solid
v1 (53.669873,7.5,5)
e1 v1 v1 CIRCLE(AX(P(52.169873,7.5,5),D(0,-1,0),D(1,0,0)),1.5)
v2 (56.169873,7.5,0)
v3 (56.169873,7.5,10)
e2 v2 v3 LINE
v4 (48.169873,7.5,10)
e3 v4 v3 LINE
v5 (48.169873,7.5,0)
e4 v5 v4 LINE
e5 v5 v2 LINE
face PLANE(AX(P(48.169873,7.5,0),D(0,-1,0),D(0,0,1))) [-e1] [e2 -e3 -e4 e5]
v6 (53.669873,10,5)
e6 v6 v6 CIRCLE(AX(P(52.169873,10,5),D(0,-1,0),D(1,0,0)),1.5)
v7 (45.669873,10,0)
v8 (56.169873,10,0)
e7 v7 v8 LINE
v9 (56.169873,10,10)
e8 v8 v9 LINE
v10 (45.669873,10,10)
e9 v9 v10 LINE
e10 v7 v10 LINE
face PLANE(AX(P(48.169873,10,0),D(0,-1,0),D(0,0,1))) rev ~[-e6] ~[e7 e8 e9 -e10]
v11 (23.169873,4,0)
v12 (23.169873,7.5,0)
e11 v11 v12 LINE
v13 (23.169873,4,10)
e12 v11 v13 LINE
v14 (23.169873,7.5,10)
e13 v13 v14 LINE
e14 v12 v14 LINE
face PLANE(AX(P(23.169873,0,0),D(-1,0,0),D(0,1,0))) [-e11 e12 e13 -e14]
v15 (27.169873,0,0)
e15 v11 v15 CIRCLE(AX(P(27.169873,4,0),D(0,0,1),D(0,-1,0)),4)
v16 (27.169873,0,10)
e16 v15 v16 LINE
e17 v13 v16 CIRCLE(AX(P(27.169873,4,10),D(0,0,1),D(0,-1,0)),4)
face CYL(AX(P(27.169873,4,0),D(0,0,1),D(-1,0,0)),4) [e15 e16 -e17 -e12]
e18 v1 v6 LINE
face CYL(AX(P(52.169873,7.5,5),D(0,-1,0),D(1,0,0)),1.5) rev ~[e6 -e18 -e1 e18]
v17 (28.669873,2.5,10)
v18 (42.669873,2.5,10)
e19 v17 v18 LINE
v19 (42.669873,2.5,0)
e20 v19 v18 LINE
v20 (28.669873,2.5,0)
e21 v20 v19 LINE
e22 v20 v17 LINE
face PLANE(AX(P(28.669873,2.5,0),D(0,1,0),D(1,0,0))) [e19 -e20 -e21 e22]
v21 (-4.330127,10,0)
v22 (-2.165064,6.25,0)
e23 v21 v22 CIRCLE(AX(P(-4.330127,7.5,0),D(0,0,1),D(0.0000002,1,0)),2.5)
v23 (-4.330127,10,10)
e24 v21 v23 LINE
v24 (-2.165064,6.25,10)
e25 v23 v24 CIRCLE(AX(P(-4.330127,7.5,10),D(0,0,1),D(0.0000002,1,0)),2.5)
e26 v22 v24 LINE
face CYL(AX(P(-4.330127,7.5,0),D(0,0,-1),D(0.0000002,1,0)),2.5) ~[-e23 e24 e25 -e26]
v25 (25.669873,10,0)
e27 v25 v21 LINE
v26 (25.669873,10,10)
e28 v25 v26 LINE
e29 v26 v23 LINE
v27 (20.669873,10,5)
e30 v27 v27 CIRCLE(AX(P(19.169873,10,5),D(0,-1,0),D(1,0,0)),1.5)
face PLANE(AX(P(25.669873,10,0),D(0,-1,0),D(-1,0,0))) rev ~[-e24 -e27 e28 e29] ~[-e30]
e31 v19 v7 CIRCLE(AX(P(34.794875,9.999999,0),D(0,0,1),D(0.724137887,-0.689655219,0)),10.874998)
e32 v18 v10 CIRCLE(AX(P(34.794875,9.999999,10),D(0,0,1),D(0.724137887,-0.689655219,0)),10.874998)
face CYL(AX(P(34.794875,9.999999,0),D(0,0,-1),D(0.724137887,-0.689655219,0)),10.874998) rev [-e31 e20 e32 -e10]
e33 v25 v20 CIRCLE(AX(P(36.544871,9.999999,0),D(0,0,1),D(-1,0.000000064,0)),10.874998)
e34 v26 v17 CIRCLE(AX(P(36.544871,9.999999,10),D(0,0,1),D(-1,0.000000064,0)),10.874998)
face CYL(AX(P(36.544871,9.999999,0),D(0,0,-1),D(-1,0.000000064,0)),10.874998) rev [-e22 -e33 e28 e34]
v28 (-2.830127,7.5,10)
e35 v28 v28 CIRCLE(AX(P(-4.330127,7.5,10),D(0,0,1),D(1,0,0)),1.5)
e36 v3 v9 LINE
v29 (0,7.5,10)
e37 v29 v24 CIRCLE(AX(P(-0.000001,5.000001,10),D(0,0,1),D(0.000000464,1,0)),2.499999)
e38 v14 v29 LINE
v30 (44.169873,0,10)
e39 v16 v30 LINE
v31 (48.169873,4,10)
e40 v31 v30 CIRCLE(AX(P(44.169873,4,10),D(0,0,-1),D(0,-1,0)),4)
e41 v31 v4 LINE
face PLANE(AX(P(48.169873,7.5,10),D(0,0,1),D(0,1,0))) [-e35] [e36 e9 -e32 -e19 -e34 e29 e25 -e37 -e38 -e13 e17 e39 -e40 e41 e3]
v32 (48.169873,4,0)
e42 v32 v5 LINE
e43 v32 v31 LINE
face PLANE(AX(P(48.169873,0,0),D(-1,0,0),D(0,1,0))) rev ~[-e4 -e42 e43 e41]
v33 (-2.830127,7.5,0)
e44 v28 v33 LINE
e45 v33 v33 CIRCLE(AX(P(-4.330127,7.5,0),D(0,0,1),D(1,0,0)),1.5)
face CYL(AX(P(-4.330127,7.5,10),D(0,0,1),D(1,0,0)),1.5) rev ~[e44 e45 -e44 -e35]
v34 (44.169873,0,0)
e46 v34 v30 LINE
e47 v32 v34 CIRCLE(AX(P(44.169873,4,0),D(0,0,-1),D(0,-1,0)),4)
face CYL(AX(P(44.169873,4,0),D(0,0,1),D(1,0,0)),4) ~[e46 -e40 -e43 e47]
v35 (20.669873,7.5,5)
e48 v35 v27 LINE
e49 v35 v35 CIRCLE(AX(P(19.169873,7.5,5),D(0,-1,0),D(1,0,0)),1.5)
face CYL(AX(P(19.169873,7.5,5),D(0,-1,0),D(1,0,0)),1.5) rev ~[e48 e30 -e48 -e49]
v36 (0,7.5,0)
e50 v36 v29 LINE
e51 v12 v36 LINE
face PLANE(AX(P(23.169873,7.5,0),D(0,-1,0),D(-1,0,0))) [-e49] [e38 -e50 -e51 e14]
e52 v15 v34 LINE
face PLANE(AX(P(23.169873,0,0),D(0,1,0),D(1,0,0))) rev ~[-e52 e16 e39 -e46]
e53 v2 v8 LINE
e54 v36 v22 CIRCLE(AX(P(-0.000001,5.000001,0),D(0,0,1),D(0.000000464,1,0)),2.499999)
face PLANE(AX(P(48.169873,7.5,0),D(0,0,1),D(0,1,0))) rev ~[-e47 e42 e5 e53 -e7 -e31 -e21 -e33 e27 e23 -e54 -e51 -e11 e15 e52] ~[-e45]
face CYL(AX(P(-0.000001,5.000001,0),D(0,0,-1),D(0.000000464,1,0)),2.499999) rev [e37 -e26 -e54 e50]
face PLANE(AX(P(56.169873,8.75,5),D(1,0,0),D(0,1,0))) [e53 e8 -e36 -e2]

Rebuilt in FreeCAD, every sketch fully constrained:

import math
import FreeCAD as App
import Part
import Sketcher

V = App.Vector
Q = App.Units.Quantity


def edges_at(feature, points):
    """Names of the edges that pass closest to the given points."""
    edges = feature.Shape.Edges
    near = lambda p: min(range(len(edges)), key=lambda i: edges[i].distToShape(Part.Vertex(*p))[0])
    return sorted({f"Edge{near(p) + 1}" for p in points})


def add_polygon(sketch, points):
    """Adds a closed chain of lines whose ends are joined by coincident constraints."""
    first, n = sketch.GeometryCount, len(points)
    for a, b in zip(points, points[1:] + points[:1]):
        sketch.addGeometry(Part.LineSegment(App.Vector(*a, 0), App.Vector(*b, 0)), False)
    for i in range(n):
        sketch.addConstraint(Sketcher.Constraint("Coincident", first + i, 2, first + (i + 1) % n, 1))

doc = App.newDocument("Part")
params = doc.addObject("Spreadsheet::Sheet", "Params")
for row, (alias, value) in enumerate([
    ("sketch1_radius", "2.5 mm"),
    ("sketch1_width", "30 mm"),
    ("sketch1_width2", "25 mm"),
    ("sketch1_width3", "14 mm"),
    ("sketch1_height", "10 mm"),
    ("pad1_length", "10 mm"),
    ("sketch2_diameter", "3 mm"),
    ("sketch3_height", "10 mm"),
    ("sketch3_width", "2.5 mm"),
    ("pad2_length", "8 mm"),
    ("sketch4_diameter", "3 mm"),
    ("fillet_radius", "4 mm"),
], start=1):
    params.set(f"A{row}", alias)
    params.set(f"B{row}", "=" + value)
    params.setAlias(f"B{row}", alias)

body = doc.addObject("PartDesign::Body", "Body")

# Sketch on XY plane
sketch1 = doc.addObject("Sketcher::SketchObject", "Sketch")
body.addObject(sketch1)
sketch1.AttachmentSupport = (doc.XY_Plane, [""])
sketch1.MapMode = "FlatFace"
sketch1.addGeometry(Part.ArcOfCircle(Part.Circle(V(36.5, 10, 0), V(0, 0, 1), 10.9), math.radians(180), math.radians(224)), False)
sketch1.addGeometry(Part.LineSegment(V(25.7, 10, 0), V(-4.3, 10, 0)), False)
sketch1.addGeometry(Part.ArcOfCircle(Part.Circle(V(-4.3, 7.5, 0), V(0, 0, 1), 2.5), math.radians(90), math.radians(330)), False)
sketch1.addGeometry(Part.ArcOfCircle(Part.Circle(V(0, 5, 0), V(0, 0, 1), 2.5), math.radians(90), math.radians(150)), False)
sketch1.addGeometry(Part.LineSegment(V(0, 7.5, 0), V(23.2, 7.5, 0)), False)
sketch1.addGeometry(Part.LineSegment(V(23.2, 7.5, 0), V(23.2, 0, 0)), False)
sketch1.addGeometry(Part.LineSegment(V(23.2, 0, 0), V(48.2, 0, 0)), False)
sketch1.addGeometry(Part.LineSegment(V(48.2, 0, 0), V(48.2, 10, 0)), False)
sketch1.addGeometry(Part.LineSegment(V(48.2, 10, 0), V(45.7, 10, 0)), False)
sketch1.addGeometry(Part.ArcOfCircle(Part.Circle(V(34.8, 10, 0), V(0, 0, 1), 10.9), math.radians(-44), math.radians(0)), False)
sketch1.addGeometry(Part.LineSegment(V(42.7, 2.5, 0), V(28.7, 2.5, 0)), False)
sketch1.addConstraint(Sketcher.Constraint("Coincident", 0, 1, 1, 1))
sketch1.addConstraint(Sketcher.Constraint("Tangent", 1, 2, 2, 1))
sketch1.addConstraint(Sketcher.Constraint("Tangent", 2, 2, 3, 2))
sketch1.addConstraint(Sketcher.Constraint("Tangent", 3, 1, 4, 1))
sketch1.addConstraint(Sketcher.Constraint("Coincident", 4, 2, 5, 1))
sketch1.addConstraint(Sketcher.Constraint("Coincident", 5, 2, 6, 1))
sketch1.addConstraint(Sketcher.Constraint("Coincident", 6, 2, 7, 1))
sketch1.addConstraint(Sketcher.Constraint("Coincident", 7, 2, 8, 1))
sketch1.addConstraint(Sketcher.Constraint("Coincident", 8, 2, 9, 2))
sketch1.addConstraint(Sketcher.Constraint("Coincident", 9, 1, 10, 1))
sketch1.addConstraint(Sketcher.Constraint("Coincident", 10, 2, 0, 2))
sketch1.addConstraint(Sketcher.Constraint("Horizontal", 1))
sketch1.addConstraint(Sketcher.Constraint("Horizontal", 4))
sketch1.addConstraint(Sketcher.Constraint("Vertical", 5))
sketch1.addConstraint(Sketcher.Constraint("Horizontal", 6))
sketch1.addConstraint(Sketcher.Constraint("Vertical", 7))
sketch1.addConstraint(Sketcher.Constraint("Horizontal", 8))
sketch1.addConstraint(Sketcher.Constraint("Horizontal", 10))
sketch1.addConstraint(Sketcher.Constraint("Equal", 2, 3))
sketch1.addConstraint(Sketcher.Constraint("Equal", 0, 9))
sketch1.addConstraint(Sketcher.Constraint("PointOnObject", 3, 3, -2))
sketch1.addConstraint(Sketcher.Constraint("PointOnObject", 5, 2, -1))
sketch1.addConstraint(Sketcher.Constraint("Horizontal", 0, 3, 9, 3))
sketch1.addConstraint(Sketcher.Constraint("Horizontal", 9, 3, 0, 1))
sketch1.addConstraint(Sketcher.Constraint("Horizontal", 2, 3, 3, 1))
sketch1.addConstraint(Sketcher.Constraint("Horizontal", 1, 2, 7, 2))
sketch1.addConstraint(Sketcher.Constraint("Radius", 2, Q("2.5 mm")))
sketch1.addConstraint(Sketcher.Constraint("DistanceX", 1, 2, 1, 1, Q("30 mm")))
sketch1.addConstraint(Sketcher.Constraint("DistanceX", 6, 1, 6, 2, Q("25 mm")))
sketch1.addConstraint(Sketcher.Constraint("DistanceX", 10, 2, 10, 1, Q("14 mm")))
sketch1.addConstraint(Sketcher.Constraint("DistanceY", 7, 1, 7, 2, Q("10 mm")))
sketch1.addConstraint(Sketcher.Constraint("DistanceX", 8, 2, 8, 1, Q("2.5 mm")))
sketch1.addConstraint(Sketcher.Constraint("Radius", 0, Q("10.874998 mm")))
sketch1.addConstraint(Sketcher.Constraint("DistanceX", 0, 1, 8, 2, Q("20 mm")))
sketch1.setExpression("Constraints[26]", "Params.sketch1_radius")
sketch1.setExpression("Constraints[27]", "Params.sketch1_width")
sketch1.setExpression("Constraints[28]", "Params.sketch1_width2")
sketch1.setExpression("Constraints[29]", "Params.sketch1_width3")
sketch1.setExpression("Constraints[30]", "Params.sketch1_height")
pad1 = doc.addObject("PartDesign::Pad", "Pad")
body.addObject(pad1)
pad1.Profile = sketch1
pad1.setExpression("Length", "Params.pad1_length")

# Sketch on XY plane
sketch2 = doc.addObject("Sketcher::SketchObject", "Sketch001")
body.addObject(sketch2)
sketch2.AttachmentSupport = (doc.XY_Plane, [""])
sketch2.MapMode = "FlatFace"
sketch2.AttachmentOffset = App.Placement(V(0, 0, 10), App.Rotation())
sketch2.addGeometry(Part.Circle(V(-4.3, 7.5, 0), V(0, 0, 1), 1.5), False)
sketch2.addConstraint(Sketcher.Constraint("Diameter", 0, Q("3 mm")))
sketch2.addConstraint(Sketcher.Constraint("DistanceY", -1, 1, 0, 3, Q("7.5 mm")))
sketch2.addConstraint(Sketcher.Constraint("DistanceX", 0, 3, -1, 1, Q("4.330127 mm")))
sketch2.setExpression("Constraints[0]", "Params.sketch2_diameter")
pocket1 = doc.addObject("PartDesign::Pocket", "Pocket")
body.addObject(pocket1)
pocket1.Profile = sketch2
pocket1.Type = "ThroughAll"

# Sketch on YZ plane
sketch3 = doc.addObject("Sketcher::SketchObject", "Sketch002")
body.addObject(sketch3)
sketch3.AttachmentSupport = (doc.YZ_Plane, [""])
sketch3.MapMode = "FlatFace"
sketch3.AttachmentOffset = App.Placement(V(0, 0, 48.169873), App.Rotation())
add_polygon(sketch3, [(7.5, 10), (7.5, 0), (10, 0), (10, 10)])  # lines 0-3
sketch3.addConstraint(Sketcher.Constraint("Vertical", 0))
sketch3.addConstraint(Sketcher.Constraint("Horizontal", 1))
sketch3.addConstraint(Sketcher.Constraint("Vertical", 2))
sketch3.addConstraint(Sketcher.Constraint("Horizontal", 3))
sketch3.addConstraint(Sketcher.Constraint("PointOnObject", 0, 2, -1))
sketch3.addConstraint(Sketcher.Constraint("DistanceY", 0, 2, 0, 1, Q("10 mm")))
sketch3.addConstraint(Sketcher.Constraint("DistanceX", 1, 1, 1, 2, Q("2.5 mm")))
sketch3.addConstraint(Sketcher.Constraint("DistanceX", -1, 1, 1, 2, Q("10 mm")))
sketch3.setExpression("Constraints[9]", "Params.sketch3_height")
sketch3.setExpression("Constraints[10]", "Params.sketch3_width")
pad2 = doc.addObject("PartDesign::Pad", "Pad001")
body.addObject(pad2)
pad2.Profile = sketch3
pad2.setExpression("Length", "Params.pad2_length")

# Sketch on XZ plane
sketch4 = doc.addObject("Sketcher::SketchObject", "Sketch003")
body.addObject(sketch4)
sketch4.AttachmentSupport = (doc.XZ_Plane, [""])
sketch4.MapMode = "FlatFace"
sketch4.AttachmentOffset = App.Placement(V(0, 0, -7.5), App.Rotation())
sketch4.addGeometry(Part.Circle(V(52.2, 5, 0), V(0, 0, 1), 1.5), False)
sketch4.addGeometry(Part.Circle(V(19.2, 5, 0), V(0, 0, 1), 1.5), False)
sketch4.addConstraint(Sketcher.Constraint("Equal", 0, 1))
sketch4.addConstraint(Sketcher.Constraint("Horizontal", 0, 3, 1, 3))
sketch4.addConstraint(Sketcher.Constraint("Diameter", 0, Q("3 mm")))
sketch4.addConstraint(Sketcher.Constraint("DistanceY", -1, 1, 0, 3, Q("5 mm")))
sketch4.addConstraint(Sketcher.Constraint("DistanceX", 1, 3, 0, 3, Q("33 mm")))
sketch4.addConstraint(Sketcher.Constraint("DistanceX", -1, 1, 0, 3, Q("52.169873 mm")))
sketch4.setExpression("Constraints[2]", "Params.sketch4_diameter")
pocket2 = doc.addObject("PartDesign::Pocket", "Pocket001")
body.addObject(pocket2)
pocket2.Profile = sketch4
pocket2.Type = "ThroughAll"
doc.recompute()

fillet = doc.addObject("PartDesign::Fillet", "Fillet")
body.addObject(fillet)
fillet.Base = (pocket2, edges_at(pocket2, [(48.17, 0, 5), (23.17, 0, 5)]))
fillet.setExpression("Radius", "Params.fillet_radius")

doc.recompute()
